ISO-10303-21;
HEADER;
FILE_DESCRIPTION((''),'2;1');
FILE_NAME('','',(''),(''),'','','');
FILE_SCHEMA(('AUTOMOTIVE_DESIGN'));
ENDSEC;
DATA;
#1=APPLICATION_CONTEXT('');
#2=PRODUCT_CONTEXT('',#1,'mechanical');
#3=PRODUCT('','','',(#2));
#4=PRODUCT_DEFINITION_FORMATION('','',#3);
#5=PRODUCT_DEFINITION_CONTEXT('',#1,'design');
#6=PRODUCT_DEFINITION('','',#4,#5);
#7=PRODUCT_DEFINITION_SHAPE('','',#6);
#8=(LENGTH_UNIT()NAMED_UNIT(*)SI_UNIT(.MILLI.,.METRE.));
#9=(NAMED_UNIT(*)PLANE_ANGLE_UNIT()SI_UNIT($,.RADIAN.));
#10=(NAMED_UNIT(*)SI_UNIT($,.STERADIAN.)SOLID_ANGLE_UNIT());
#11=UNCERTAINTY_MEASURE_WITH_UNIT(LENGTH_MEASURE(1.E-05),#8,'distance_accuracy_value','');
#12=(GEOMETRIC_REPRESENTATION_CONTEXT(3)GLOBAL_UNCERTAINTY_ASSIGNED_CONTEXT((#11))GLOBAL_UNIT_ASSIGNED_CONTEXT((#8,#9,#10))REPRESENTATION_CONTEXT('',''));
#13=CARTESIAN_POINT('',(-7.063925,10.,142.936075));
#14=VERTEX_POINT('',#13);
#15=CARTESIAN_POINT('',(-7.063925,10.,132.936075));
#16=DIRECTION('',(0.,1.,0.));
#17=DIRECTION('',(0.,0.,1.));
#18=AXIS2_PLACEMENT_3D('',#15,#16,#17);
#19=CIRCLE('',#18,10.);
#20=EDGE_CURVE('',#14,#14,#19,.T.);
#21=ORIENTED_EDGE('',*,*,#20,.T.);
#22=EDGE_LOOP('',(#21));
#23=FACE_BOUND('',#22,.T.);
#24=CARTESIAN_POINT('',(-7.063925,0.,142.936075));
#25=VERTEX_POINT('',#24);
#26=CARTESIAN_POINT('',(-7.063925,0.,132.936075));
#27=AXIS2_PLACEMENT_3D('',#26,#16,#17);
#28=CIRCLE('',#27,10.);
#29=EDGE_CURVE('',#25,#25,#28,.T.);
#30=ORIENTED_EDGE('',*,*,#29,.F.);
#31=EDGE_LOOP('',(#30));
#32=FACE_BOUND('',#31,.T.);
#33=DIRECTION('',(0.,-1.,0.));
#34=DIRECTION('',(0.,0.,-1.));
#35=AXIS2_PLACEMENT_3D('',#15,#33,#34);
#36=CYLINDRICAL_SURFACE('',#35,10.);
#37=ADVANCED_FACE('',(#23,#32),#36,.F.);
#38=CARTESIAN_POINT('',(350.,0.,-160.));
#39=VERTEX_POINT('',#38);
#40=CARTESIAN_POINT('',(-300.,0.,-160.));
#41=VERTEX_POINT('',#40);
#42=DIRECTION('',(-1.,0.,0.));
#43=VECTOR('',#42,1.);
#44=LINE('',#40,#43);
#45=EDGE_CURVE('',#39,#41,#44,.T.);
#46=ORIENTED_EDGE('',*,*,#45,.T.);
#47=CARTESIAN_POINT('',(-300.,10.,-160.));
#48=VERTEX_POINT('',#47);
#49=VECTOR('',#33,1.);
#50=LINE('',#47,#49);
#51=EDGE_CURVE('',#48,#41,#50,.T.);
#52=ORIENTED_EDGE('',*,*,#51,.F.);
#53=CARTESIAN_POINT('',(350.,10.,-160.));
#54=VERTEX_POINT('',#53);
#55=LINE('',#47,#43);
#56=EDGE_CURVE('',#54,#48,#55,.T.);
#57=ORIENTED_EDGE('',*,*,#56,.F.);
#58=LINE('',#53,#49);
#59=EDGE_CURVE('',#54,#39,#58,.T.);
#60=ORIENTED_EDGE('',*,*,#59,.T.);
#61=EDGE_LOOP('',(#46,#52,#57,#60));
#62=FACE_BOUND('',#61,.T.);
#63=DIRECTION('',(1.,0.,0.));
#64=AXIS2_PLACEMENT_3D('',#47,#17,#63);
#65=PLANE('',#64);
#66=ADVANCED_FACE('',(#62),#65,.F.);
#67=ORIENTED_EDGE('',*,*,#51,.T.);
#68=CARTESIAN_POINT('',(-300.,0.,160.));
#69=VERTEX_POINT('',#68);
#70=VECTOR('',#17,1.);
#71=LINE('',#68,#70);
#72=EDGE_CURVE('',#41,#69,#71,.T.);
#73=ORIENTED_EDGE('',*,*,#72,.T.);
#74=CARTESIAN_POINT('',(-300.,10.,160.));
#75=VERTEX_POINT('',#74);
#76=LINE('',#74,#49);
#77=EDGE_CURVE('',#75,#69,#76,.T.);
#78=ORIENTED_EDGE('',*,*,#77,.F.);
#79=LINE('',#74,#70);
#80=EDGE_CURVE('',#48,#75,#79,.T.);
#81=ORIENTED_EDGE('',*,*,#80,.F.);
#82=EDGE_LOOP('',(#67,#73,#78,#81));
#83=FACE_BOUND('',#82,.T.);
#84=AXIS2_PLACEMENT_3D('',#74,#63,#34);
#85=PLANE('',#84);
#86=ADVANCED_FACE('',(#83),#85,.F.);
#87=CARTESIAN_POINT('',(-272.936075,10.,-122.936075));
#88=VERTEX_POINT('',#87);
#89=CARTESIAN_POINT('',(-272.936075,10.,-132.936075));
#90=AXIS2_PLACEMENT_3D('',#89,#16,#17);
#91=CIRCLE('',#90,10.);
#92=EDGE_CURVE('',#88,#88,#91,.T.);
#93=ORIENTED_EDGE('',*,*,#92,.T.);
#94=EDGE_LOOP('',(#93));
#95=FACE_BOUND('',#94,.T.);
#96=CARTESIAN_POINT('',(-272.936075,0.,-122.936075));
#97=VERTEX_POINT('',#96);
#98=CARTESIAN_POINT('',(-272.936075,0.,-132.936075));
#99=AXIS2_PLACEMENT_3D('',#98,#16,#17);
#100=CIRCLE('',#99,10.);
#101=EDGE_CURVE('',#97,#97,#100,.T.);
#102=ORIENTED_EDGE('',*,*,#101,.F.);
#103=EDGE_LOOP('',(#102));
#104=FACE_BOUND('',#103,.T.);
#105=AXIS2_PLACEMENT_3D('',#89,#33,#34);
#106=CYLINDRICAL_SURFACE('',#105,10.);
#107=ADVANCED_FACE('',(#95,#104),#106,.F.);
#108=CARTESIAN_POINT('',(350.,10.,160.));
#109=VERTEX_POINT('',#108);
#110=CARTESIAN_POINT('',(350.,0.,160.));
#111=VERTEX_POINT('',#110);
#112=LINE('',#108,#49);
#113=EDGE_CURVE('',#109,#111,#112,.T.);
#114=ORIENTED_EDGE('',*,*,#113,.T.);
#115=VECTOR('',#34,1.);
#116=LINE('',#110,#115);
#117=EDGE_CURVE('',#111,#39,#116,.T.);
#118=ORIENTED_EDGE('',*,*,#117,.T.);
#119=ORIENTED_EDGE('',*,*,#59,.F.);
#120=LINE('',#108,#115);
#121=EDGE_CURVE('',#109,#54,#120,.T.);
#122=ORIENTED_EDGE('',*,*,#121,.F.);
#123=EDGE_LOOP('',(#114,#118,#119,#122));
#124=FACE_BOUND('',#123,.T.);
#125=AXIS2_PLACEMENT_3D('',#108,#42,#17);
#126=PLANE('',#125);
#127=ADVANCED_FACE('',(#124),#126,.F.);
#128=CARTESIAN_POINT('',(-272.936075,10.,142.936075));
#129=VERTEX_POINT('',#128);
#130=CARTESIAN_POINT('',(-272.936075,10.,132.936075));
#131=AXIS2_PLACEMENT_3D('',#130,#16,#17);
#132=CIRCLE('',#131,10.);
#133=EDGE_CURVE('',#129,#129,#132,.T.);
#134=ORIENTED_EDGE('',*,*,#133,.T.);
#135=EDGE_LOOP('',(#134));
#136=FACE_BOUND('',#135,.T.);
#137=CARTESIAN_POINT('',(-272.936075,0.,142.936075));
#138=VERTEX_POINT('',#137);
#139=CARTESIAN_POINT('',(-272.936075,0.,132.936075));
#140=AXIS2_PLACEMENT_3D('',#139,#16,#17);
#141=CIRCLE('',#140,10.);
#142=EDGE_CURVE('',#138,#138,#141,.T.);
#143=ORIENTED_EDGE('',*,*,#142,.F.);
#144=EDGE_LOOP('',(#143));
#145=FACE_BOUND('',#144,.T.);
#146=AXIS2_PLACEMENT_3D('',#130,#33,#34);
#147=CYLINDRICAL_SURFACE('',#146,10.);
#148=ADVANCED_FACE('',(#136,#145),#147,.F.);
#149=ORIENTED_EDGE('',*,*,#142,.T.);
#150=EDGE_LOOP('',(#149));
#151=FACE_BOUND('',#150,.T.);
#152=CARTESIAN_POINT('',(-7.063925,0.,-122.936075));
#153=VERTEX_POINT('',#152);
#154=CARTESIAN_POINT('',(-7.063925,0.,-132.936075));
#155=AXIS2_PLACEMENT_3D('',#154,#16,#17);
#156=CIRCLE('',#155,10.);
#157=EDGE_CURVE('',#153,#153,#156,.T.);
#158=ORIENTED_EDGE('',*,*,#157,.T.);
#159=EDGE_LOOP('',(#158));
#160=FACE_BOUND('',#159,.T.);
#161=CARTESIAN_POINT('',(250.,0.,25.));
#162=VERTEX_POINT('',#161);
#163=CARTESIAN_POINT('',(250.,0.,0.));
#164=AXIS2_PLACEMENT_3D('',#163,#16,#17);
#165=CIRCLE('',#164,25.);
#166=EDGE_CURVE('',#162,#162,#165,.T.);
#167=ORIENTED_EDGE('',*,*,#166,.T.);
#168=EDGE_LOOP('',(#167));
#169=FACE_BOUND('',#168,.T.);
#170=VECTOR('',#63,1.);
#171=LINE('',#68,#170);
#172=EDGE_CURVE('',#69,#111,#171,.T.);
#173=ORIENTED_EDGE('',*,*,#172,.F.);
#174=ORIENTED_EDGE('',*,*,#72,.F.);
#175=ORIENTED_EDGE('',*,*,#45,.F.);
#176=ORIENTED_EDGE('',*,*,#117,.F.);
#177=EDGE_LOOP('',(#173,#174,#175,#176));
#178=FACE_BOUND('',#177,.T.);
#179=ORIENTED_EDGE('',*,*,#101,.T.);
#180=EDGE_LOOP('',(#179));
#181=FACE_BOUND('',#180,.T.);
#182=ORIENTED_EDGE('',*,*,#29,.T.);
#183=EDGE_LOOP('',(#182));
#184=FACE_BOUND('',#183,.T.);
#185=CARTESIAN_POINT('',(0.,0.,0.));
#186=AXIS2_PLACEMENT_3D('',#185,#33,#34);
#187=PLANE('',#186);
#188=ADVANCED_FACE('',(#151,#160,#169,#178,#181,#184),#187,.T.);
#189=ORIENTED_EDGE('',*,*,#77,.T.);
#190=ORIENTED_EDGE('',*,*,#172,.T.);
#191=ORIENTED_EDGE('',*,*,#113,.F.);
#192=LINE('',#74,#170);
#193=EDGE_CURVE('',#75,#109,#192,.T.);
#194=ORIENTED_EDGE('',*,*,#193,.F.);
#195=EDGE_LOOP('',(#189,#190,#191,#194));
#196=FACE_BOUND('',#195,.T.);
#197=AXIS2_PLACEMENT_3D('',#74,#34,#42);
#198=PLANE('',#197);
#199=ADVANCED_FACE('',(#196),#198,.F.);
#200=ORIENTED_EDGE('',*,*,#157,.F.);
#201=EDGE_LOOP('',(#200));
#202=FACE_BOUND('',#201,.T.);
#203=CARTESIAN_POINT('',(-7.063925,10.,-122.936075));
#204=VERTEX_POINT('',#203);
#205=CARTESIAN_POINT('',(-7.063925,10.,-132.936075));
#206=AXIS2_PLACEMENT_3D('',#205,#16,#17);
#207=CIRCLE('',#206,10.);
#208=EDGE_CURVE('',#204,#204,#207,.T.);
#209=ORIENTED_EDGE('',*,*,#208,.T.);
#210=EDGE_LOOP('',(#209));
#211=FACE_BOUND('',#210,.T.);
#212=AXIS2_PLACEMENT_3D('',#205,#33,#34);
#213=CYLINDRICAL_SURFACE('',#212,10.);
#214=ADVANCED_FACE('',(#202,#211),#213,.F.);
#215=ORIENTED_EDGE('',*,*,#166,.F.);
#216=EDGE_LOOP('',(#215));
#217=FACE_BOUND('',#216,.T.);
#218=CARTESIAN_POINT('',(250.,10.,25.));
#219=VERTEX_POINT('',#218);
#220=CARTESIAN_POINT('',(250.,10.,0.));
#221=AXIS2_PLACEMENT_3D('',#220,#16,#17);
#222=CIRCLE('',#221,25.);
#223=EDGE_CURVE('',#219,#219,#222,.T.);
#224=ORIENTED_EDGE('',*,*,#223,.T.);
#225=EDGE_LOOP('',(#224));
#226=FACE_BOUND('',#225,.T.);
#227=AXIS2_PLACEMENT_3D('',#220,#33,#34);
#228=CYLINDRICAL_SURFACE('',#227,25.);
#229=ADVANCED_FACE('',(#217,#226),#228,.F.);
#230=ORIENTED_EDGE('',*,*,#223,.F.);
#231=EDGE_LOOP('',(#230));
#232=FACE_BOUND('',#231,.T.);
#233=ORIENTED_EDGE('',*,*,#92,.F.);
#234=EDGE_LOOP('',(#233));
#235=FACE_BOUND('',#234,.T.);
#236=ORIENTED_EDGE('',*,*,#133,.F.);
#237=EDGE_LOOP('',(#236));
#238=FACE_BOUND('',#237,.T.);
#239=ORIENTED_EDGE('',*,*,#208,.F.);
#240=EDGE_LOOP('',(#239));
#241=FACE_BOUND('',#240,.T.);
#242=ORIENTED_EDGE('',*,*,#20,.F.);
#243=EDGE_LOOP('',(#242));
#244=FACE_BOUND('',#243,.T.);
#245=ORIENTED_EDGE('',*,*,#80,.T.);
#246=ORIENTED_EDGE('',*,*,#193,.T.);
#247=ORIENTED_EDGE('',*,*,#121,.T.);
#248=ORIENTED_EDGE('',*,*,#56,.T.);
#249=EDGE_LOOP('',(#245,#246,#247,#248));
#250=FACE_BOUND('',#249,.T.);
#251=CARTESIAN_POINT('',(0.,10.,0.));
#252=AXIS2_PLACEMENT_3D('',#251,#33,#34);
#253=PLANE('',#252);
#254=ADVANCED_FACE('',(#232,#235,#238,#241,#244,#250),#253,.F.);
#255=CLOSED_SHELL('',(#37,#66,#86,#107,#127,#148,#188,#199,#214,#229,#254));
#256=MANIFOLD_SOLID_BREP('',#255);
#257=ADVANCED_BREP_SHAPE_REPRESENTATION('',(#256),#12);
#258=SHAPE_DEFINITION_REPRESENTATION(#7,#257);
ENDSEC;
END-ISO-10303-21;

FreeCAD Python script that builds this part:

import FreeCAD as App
import Part
import Sketcher

V = App.Vector
Q = App.Units.Quantity


def add_polygon(sketch, points):
    """Adds a closed chain of lines whose ends are joined by coincident constraints."""
    first, n = sketch.GeometryCount, len(points)
    for a, b in zip(points, points[1:] + points[:1]):
        sketch.addGeometry(Part.LineSegment(App.Vector(*a, 0), App.Vector(*b, 0)), False)
    for i in range(n):
        sketch.addConstraint(Sketcher.Constraint("Coincident", first + i, 2, first + (i + 1) % n, 1))

doc = App.newDocument("Part")
body = doc.addObject("PartDesign::Body", "Body")

# Sketch on XZ plane
sketch1 = body.newObject("Sketcher::SketchObject", "Sketch")
sketch1.AttachmentSupport = (doc.getObject("XZ_Plane"), [""])
sketch1.MapMode = "FlatFace"
add_polygon(sketch1, [(-300, -160), (-300, 160), (350, 160), (350, -160)])  # lines 0-3
sketch1.addGeometry(Part.Circle(V(-273, 133, 0), V(0, 0, 1), 10), False)  # 4
sketch1.addGeometry(Part.Circle(V(-7, 133, 0), V(0, 0, 1), 10), False)  # 5
sketch1.addGeometry(Part.Circle(V(-273, -133, 0), V(0, 0, 1), 10), False)  # 6
sketch1.addGeometry(Part.Circle(V(-7, -133, 0), V(0, 0, 1), 10), False)  # 7
sketch1.addGeometry(Part.Circle(V(250, 0, 0), V(0, 0, 1), 25), False)  # 8
sketch1.addConstraint(Sketcher.Constraint("Vertical", 0))
sketch1.addConstraint(Sketcher.Constraint("Horizontal", 1))
sketch1.addConstraint(Sketcher.Constraint("Vertical", 2))
sketch1.addConstraint(Sketcher.Constraint("Horizontal", 3))
sketch1.addConstraint(Sketcher.Constraint("Equal", 4, 5))
sketch1.addConstraint(Sketcher.Constraint("Equal", 5, 6))
sketch1.addConstraint(Sketcher.Constraint("Equal", 6, 7))
sketch1.addConstraint(Sketcher.Constraint("Symmetric", 4, 3, 6, 3, -1))
sketch1.addConstraint(Sketcher.Constraint("Symmetric", 5, 3, 7, 3, -1))
sketch1.addConstraint(Sketcher.Constraint("PointOnObject", 8, 3, -1))
sketch1.addConstraint(Sketcher.Constraint("Horizontal", 4, 3, 5, 3))
sketch1.addConstraint(Sketcher.Constraint("Diameter", 4, Q("20 mm")))
sketch1.addConstraint(Sketcher.Constraint("Diameter", 8, Q("50 mm")))
sketch1.addConstraint(Sketcher.Constraint("DistanceX", 1, 1, 1, 2, Q("650 mm")))
sketch1.addConstraint(Sketcher.Constraint("DistanceY", 0, 1, 0, 2, Q("320 mm")))
sketch1.addConstraint(Sketcher.Constraint("DistanceX", -1, 1, 8, 3, Q("250 mm")))
sketch1.addConstraint(Sketcher.Constraint("DistanceX", 0, 2, -1, 1, Q("300 mm")))
sketch1.addConstraint(Sketcher.Constraint("DistanceY", -1, 1, 0, 2, Q("160 mm")))
sketch1.addConstraint(Sketcher.Constraint("DistanceX", 4, 3, 5, 3, Q("265.87215 mm")))
sketch1.addConstraint(Sketcher.Constraint("DistanceY", 6, 3, 4, 3, Q("265.87215 mm")))
sketch1.addConstraint(Sketcher.Constraint("DistanceX", 4, 3, -1, 1, Q("272.936075 mm")))
pad1 = body.newObject("PartDesign::Pad", "Pad")
pad1.Profile = sketch1
pad1.Length = 10
pad1.Reversed = True

doc.recompute()
